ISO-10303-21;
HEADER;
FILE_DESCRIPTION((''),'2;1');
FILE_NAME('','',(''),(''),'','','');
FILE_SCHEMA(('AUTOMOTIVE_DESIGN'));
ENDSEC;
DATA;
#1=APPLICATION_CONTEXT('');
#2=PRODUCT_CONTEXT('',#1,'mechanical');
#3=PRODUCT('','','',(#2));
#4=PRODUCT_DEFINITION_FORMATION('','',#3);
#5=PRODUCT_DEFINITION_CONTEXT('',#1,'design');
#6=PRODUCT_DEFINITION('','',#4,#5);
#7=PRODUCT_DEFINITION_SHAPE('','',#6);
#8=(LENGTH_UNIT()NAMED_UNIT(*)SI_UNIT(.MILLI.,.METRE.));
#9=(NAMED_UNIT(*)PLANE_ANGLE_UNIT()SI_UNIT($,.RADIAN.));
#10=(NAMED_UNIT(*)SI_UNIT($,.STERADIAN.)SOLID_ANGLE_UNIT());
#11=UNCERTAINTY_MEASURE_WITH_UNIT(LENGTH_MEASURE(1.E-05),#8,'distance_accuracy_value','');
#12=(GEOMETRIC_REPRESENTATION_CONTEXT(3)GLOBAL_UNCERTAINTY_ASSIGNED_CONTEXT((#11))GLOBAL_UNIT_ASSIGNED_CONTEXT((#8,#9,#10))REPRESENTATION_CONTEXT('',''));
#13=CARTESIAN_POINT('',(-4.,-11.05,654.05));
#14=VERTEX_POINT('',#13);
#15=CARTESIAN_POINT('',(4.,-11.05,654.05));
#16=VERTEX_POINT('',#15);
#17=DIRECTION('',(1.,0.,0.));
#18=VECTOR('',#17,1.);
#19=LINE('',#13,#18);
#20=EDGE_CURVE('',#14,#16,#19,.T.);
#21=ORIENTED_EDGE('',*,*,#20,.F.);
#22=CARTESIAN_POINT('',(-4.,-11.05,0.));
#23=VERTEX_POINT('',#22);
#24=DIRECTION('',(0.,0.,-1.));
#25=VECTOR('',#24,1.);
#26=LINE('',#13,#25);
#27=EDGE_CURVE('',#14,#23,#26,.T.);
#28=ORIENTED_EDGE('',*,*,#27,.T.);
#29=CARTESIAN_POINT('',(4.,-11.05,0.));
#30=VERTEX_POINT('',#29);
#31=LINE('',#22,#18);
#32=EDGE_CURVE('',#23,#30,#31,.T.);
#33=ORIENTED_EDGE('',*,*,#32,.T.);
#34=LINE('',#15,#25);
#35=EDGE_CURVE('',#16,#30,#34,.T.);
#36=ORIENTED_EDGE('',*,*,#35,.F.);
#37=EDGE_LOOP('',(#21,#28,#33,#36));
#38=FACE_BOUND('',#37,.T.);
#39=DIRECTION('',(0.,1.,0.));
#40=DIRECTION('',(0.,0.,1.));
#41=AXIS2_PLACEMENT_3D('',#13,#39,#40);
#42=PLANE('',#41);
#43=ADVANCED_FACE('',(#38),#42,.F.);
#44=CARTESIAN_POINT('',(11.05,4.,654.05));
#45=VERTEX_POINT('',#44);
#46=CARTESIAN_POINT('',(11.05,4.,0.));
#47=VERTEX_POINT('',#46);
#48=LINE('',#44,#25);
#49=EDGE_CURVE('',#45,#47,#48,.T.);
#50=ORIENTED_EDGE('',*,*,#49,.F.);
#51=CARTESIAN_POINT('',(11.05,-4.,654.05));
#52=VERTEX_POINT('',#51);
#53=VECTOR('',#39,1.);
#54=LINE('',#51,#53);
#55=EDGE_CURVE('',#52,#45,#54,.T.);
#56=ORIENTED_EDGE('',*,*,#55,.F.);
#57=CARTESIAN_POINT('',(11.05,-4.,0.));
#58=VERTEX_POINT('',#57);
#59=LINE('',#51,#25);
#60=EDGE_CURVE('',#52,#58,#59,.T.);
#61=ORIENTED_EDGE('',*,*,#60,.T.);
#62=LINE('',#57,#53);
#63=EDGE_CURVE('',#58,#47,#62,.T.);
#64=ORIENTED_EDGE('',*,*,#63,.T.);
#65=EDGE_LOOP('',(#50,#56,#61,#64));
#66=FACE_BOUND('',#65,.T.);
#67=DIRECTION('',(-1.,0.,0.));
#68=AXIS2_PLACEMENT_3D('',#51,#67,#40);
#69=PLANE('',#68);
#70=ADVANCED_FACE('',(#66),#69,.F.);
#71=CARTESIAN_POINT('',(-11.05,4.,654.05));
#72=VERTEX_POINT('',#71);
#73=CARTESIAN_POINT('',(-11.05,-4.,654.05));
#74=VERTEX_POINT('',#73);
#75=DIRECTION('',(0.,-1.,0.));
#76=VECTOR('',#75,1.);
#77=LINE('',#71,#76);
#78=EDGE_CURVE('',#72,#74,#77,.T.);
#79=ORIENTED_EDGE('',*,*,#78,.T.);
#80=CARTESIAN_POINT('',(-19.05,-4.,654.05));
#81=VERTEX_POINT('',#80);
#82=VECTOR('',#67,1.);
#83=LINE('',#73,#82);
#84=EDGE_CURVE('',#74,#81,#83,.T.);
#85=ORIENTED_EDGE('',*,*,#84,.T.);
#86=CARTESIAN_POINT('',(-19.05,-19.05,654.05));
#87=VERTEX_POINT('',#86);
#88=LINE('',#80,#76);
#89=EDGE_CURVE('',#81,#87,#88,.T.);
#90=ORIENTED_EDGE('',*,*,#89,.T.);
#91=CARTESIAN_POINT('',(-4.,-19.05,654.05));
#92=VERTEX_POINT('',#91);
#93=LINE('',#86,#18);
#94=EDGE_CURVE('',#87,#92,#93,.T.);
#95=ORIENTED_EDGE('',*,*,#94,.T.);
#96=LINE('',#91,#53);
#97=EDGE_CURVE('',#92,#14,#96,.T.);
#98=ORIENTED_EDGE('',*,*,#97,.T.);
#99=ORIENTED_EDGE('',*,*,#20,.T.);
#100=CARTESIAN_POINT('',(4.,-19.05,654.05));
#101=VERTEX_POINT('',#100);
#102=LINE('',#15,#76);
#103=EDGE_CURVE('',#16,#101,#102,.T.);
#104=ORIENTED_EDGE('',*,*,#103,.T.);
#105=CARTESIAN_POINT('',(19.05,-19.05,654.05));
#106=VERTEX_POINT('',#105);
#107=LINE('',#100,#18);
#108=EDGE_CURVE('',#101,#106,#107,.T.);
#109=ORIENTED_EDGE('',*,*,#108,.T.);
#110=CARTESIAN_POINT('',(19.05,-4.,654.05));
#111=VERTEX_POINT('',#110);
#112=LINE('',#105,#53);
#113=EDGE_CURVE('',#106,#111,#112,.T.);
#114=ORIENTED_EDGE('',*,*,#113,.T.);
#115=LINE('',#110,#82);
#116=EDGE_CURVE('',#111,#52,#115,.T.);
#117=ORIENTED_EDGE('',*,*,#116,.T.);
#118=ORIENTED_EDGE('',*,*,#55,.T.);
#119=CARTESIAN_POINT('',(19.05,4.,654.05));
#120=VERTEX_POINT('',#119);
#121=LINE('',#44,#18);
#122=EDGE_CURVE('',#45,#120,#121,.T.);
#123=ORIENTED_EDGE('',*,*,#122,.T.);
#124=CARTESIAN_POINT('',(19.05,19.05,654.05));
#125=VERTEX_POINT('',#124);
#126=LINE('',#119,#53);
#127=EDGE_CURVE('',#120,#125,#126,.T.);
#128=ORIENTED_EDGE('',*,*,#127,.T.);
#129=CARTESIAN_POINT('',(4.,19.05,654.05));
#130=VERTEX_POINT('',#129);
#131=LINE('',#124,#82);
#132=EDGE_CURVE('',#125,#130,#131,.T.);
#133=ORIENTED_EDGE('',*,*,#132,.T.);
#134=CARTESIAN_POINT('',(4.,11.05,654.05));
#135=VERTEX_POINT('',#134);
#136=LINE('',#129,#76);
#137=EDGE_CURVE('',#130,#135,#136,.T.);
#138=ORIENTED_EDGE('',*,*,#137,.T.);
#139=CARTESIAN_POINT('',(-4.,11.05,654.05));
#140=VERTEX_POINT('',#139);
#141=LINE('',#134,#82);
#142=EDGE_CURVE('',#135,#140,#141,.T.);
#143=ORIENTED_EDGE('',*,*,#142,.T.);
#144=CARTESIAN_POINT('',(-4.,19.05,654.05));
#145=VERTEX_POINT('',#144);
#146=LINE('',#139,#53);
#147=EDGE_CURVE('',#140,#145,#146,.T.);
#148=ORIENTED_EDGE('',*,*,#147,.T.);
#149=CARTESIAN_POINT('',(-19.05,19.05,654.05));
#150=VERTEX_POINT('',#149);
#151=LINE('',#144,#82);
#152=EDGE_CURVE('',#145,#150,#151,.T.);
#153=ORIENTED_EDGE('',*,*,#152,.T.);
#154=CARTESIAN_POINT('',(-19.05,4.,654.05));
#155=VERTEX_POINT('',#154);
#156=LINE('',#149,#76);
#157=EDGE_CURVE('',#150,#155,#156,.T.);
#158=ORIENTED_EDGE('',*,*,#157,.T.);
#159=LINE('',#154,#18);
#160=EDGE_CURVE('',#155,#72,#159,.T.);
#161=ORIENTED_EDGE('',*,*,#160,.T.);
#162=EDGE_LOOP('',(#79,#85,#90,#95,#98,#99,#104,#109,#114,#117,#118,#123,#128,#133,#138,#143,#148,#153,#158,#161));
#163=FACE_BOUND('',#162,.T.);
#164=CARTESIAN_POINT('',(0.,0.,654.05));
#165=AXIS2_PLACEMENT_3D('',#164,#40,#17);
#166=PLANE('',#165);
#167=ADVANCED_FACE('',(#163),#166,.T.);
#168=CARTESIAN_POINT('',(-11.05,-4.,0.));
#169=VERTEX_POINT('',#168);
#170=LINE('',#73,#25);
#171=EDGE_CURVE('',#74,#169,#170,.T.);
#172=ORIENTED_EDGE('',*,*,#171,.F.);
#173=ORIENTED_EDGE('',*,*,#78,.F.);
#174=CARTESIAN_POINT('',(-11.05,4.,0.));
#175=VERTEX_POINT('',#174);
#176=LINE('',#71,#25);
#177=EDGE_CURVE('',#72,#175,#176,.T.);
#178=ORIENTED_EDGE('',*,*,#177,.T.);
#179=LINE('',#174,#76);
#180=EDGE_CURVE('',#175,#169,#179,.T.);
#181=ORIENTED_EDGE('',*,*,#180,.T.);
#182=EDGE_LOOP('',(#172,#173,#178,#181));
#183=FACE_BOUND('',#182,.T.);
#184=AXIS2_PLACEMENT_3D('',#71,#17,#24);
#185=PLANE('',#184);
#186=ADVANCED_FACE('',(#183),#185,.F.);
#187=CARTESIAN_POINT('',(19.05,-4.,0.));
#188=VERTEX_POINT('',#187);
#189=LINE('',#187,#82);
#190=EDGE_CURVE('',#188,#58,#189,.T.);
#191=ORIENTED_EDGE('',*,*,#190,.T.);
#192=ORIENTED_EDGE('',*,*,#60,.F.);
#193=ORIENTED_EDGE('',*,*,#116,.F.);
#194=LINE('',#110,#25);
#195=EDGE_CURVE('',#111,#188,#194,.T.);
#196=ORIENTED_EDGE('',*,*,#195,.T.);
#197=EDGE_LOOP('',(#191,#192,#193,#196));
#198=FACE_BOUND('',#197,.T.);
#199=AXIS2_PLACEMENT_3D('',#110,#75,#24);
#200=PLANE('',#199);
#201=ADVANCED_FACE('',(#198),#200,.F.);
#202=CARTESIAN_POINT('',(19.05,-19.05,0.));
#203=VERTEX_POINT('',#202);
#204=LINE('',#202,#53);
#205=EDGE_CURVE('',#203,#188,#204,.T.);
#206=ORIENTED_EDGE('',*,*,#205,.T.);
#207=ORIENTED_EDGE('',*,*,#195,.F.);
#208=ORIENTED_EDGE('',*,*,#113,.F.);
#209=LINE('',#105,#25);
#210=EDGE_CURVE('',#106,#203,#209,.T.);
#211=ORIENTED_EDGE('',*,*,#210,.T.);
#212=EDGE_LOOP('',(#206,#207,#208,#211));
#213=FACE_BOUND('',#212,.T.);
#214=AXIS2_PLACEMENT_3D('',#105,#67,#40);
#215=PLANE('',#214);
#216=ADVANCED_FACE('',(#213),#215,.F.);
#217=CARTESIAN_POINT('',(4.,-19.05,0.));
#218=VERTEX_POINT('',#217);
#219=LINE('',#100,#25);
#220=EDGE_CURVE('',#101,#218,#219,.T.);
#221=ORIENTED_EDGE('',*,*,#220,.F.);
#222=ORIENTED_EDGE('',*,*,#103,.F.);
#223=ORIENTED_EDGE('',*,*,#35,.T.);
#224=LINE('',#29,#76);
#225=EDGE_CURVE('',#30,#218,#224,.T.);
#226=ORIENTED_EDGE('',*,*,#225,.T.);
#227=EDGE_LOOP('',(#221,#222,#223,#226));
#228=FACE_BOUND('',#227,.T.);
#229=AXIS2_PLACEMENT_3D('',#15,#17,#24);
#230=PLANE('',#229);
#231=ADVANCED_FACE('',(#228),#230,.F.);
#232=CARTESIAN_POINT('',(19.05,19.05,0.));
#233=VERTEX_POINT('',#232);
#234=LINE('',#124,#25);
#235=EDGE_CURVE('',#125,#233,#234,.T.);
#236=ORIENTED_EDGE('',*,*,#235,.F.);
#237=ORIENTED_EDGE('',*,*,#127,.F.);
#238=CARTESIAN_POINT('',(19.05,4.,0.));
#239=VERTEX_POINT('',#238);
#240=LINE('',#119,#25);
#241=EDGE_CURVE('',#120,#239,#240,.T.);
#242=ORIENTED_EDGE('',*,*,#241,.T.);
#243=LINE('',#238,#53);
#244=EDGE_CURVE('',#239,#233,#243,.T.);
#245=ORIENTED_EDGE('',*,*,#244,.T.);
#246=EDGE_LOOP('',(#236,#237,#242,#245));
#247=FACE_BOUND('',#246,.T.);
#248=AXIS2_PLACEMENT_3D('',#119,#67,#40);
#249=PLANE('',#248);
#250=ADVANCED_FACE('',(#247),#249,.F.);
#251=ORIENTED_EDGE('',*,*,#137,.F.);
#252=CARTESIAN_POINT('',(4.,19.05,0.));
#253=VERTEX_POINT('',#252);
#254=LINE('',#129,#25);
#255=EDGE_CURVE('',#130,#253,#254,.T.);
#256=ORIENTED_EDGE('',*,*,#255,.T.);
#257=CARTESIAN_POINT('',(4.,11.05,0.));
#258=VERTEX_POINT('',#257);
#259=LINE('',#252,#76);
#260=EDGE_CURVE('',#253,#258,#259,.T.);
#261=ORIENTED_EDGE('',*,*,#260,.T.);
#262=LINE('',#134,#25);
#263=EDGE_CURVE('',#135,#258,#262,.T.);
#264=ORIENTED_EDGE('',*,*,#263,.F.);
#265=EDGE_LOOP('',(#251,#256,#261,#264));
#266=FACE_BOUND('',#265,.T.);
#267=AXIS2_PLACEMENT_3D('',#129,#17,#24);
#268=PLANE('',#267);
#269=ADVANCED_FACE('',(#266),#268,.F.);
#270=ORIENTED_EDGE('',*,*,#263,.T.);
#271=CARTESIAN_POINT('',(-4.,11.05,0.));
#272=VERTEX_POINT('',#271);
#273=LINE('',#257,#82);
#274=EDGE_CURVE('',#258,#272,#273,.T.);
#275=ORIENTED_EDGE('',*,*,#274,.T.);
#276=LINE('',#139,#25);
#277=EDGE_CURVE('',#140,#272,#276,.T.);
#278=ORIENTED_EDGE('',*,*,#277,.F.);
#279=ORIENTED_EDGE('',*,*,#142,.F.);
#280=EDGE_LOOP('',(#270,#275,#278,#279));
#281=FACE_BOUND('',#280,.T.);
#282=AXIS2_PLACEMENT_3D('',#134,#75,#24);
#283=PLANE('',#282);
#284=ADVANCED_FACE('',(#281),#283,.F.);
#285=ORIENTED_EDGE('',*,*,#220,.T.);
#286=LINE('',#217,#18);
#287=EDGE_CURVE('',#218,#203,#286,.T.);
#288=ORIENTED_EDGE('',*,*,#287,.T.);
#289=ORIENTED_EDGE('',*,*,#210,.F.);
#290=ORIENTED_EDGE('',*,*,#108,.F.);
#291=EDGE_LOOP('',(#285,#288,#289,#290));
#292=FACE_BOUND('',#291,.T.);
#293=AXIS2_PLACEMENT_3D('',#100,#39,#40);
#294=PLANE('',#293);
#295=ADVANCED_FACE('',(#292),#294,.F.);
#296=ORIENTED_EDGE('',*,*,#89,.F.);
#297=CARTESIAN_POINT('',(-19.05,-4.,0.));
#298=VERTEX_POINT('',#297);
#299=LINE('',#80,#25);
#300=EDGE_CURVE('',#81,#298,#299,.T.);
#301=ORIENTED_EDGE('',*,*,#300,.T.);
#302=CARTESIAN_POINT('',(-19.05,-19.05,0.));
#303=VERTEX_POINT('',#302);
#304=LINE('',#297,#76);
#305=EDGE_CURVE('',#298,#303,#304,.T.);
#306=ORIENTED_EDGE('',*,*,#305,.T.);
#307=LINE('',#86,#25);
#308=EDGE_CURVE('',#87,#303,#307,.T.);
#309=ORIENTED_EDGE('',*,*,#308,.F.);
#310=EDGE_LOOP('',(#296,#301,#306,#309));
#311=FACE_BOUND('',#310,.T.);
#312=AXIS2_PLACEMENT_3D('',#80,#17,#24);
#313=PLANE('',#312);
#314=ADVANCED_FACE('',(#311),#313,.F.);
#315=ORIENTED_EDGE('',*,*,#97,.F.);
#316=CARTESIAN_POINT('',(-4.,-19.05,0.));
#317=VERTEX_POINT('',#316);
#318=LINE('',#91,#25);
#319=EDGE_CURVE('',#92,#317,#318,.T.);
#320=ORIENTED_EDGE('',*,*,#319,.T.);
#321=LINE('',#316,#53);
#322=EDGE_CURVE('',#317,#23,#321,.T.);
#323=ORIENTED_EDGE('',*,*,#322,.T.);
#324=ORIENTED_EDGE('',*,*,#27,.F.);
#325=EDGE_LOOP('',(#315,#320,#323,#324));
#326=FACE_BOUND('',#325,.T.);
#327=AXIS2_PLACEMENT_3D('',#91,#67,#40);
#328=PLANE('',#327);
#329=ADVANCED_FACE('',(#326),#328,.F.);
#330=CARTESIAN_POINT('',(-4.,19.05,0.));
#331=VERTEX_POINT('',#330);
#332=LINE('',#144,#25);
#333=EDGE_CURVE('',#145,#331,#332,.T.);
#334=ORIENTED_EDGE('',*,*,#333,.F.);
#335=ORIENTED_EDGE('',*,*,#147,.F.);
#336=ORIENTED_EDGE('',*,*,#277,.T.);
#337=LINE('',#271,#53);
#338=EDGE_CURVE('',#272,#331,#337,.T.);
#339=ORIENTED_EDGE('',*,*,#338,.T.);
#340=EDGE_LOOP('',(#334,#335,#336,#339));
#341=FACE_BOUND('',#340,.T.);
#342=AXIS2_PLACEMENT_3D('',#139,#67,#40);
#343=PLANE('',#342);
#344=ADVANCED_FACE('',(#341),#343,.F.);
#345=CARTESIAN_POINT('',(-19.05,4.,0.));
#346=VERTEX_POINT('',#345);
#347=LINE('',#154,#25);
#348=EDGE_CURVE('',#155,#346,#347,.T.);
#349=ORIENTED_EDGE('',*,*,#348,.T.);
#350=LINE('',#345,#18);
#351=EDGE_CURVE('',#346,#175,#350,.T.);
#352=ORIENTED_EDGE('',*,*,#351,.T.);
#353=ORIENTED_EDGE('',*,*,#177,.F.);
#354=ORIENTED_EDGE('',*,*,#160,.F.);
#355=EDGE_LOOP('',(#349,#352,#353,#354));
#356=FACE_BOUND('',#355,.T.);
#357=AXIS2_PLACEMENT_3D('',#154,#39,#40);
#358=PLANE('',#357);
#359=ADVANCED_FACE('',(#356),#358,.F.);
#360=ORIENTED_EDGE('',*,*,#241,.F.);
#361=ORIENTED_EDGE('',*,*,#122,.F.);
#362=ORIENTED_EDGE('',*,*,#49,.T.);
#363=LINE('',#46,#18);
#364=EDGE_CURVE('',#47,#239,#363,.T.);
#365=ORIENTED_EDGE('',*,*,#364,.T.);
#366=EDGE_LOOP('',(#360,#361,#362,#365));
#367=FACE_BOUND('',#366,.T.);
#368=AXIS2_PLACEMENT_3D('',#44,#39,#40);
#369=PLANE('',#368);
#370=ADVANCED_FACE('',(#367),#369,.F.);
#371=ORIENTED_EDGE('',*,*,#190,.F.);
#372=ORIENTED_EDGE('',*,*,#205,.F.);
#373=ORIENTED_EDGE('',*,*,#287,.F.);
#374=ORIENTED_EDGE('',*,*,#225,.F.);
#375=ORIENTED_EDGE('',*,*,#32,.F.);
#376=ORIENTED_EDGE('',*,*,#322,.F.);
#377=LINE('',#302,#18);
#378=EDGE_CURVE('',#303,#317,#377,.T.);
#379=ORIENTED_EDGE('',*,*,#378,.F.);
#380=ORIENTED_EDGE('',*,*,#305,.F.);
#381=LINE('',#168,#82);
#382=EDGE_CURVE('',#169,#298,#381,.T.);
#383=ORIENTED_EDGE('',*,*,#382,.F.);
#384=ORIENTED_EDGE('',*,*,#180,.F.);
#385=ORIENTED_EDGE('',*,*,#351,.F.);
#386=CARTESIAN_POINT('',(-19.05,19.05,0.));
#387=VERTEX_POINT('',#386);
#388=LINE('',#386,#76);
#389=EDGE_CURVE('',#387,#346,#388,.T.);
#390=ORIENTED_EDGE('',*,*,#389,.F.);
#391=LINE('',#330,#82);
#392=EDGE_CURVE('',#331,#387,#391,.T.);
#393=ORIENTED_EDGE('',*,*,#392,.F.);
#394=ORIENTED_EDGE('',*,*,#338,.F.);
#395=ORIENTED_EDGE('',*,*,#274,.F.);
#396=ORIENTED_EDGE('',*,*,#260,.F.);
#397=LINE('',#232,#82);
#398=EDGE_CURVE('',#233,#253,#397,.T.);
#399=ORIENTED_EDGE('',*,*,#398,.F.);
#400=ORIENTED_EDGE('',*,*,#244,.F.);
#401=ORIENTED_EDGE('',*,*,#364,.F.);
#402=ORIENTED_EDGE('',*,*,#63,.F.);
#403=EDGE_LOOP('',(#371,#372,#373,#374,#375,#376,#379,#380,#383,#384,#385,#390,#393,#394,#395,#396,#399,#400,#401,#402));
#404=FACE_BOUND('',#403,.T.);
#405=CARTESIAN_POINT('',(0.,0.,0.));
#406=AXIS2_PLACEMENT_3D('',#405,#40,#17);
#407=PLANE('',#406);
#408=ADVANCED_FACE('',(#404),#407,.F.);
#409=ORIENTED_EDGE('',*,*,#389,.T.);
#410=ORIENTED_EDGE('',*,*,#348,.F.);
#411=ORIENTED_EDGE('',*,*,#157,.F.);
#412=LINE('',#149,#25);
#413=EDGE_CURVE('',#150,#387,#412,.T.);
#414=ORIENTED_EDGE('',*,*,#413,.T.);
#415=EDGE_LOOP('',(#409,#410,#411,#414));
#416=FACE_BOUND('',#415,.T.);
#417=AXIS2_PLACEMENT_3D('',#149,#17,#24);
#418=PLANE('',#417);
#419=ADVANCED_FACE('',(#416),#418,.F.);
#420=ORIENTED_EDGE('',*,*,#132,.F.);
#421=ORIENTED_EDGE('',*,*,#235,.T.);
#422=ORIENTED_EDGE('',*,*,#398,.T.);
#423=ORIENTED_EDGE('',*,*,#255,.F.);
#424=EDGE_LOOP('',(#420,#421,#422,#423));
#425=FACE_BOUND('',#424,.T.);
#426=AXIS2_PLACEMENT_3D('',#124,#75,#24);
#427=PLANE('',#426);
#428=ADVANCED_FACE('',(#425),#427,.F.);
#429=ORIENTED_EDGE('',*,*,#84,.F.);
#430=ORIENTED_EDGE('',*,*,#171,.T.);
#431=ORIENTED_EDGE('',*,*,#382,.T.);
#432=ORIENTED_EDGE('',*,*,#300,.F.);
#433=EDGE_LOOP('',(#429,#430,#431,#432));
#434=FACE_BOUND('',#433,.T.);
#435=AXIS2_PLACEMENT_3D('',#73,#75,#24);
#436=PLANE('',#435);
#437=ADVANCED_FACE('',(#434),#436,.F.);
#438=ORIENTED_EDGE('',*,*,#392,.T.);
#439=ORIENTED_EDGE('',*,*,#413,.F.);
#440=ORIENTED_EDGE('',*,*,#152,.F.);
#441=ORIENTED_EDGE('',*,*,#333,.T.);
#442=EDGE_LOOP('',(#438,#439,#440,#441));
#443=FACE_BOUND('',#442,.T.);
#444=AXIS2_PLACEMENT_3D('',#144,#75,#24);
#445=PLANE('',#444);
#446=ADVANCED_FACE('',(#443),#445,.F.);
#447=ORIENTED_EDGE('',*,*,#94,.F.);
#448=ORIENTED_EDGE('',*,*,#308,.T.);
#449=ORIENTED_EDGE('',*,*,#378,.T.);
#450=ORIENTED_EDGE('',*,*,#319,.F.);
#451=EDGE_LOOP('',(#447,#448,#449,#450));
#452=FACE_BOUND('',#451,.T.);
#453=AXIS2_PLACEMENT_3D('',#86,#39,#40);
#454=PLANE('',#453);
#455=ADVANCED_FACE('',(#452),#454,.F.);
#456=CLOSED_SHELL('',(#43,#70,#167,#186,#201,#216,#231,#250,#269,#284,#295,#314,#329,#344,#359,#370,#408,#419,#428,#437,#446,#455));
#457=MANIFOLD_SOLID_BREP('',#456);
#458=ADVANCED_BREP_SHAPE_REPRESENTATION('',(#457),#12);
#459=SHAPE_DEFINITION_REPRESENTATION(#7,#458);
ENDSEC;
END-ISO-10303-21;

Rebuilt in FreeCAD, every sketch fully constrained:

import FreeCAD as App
import Part
import Sketcher
from FreeCAD import Vector
Q = App.Units.Quantity


def add_polygon(sketch, points):
    """Adds a closed chain of lines whose ends are joined by coincident constraints."""
    first, n = sketch.GeometryCount, len(points)
    for a, b in zip(points, points[1:] + points[:1]):
        sketch.addGeometry(Part.LineSegment(App.Vector(*a, 0), App.Vector(*b, 0)), False)
    for i in range(n):
        sketch.addConstraint(Sketcher.Constraint("Coincident", first + i, 2, first + (i + 1) % n, 1))

doc = App.newDocument("Part")
params = doc.addObject("Spreadsheet::Sheet", "Params")
for row, (alias, value) in enumerate([
    ("sketch1_width", "8 mm"),
    ("sketch1_width2", "15.05 mm"),
    ("pad1_length", "654.05 mm"),
], start=1):
    params.set(f"A{row}", alias)
    params.set(f"B{row}", "=" + value)
    params.setAlias(f"B{row}", alias)

body = doc.addObject("PartDesign::Body", "Body")

# Sketch on XY plane
sketch1 = doc.addObject("Sketcher::SketchObject", "Sketch")
body.addObject(sketch1)
sketch1.AttachmentSupport = (doc.XY_Plane, [""])
sketch1.MapMode = "FlatFace"
add_polygon(sketch1, [(-19, -19), (-4, -19), (-4, -11), (4, -11), (4, -19), (19, -19), (19, -4), (11, -4), (11, 4), (19, 4), (19, 19), (4, 19), (4, 11), (-4, 11), (-4, 19), (-19, 19), (-19, 4), (-11, 4), (-11, -4), (-19, -4)])  # lines 0-19
sketch1.addConstraint([
    Sketcher.Constraint("Horizontal", 0),
    Sketcher.Constraint("Vertical", 1),
    Sketcher.Constraint("Horizontal", 2),
    Sketcher.Constraint("Vertical", 3),
    Sketcher.Constraint("Horizontal", 4),
    Sketcher.Constraint("Vertical", 5),
    Sketcher.Constraint("Horizontal", 6),
    Sketcher.Constraint("Vertical", 7),
    Sketcher.Constraint("Horizontal", 8),
    Sketcher.Constraint("Vertical", 9),
    Sketcher.Constraint("Horizontal", 10),
    Sketcher.Constraint("Vertical", 11),
    Sketcher.Constraint("Horizontal", 12),
    Sketcher.Constraint("Vertical", 13),
    Sketcher.Constraint("Horizontal", 14),
    Sketcher.Constraint("Vertical", 15),
    Sketcher.Constraint("Horizontal", 16),
    Sketcher.Constraint("Vertical", 17),
    Sketcher.Constraint("Horizontal", 18),
    Sketcher.Constraint("Vertical", 19),
    Sketcher.Constraint("Symmetric", 0, 2, 10, 2, -1, 1),
    Sketcher.Constraint("Symmetric", 2, 2, 12, 2, -1, 1),
    Sketcher.Constraint("Symmetric", 4, 2, 14, 2, -1, 1),
    Sketcher.Constraint("Symmetric", 6, 2, 16, 2, -1, 1),
    Sketcher.Constraint("Symmetric", 8, 2, 18, 2, -1, 1),
    Sketcher.Constraint("Symmetric", 0, 2, 3, 2, -2),
    Sketcher.Constraint("Symmetric", 8, 2, 15, 2, -2),
    Sketcher.Constraint("Equal", 2, 6),
    Sketcher.Constraint("Equal", 18, 1),
    Sketcher.Constraint("Equal", 14, 5),
    Sketcher.Constraint("Equal", 3, 7),
    Sketcher.Constraint("DistanceX", 2, 1, 2, 2, Q("8 mm")),
    Sketcher.Constraint("DistanceX", 0, 1, 0, 2, Q("15.05 mm")),
])
sketch1.setExpression("Constraints[51]", "Params.sketch1_width")
sketch1.setExpression("Constraints[52]", "Params.sketch1_width2")
pad1 = doc.addObject("PartDesign::Pad", "Pad")
body.addObject(pad1)
pad1.Profile = sketch1
pad1.setExpression("Length", "Params.pad1_length")

doc.recompute()
